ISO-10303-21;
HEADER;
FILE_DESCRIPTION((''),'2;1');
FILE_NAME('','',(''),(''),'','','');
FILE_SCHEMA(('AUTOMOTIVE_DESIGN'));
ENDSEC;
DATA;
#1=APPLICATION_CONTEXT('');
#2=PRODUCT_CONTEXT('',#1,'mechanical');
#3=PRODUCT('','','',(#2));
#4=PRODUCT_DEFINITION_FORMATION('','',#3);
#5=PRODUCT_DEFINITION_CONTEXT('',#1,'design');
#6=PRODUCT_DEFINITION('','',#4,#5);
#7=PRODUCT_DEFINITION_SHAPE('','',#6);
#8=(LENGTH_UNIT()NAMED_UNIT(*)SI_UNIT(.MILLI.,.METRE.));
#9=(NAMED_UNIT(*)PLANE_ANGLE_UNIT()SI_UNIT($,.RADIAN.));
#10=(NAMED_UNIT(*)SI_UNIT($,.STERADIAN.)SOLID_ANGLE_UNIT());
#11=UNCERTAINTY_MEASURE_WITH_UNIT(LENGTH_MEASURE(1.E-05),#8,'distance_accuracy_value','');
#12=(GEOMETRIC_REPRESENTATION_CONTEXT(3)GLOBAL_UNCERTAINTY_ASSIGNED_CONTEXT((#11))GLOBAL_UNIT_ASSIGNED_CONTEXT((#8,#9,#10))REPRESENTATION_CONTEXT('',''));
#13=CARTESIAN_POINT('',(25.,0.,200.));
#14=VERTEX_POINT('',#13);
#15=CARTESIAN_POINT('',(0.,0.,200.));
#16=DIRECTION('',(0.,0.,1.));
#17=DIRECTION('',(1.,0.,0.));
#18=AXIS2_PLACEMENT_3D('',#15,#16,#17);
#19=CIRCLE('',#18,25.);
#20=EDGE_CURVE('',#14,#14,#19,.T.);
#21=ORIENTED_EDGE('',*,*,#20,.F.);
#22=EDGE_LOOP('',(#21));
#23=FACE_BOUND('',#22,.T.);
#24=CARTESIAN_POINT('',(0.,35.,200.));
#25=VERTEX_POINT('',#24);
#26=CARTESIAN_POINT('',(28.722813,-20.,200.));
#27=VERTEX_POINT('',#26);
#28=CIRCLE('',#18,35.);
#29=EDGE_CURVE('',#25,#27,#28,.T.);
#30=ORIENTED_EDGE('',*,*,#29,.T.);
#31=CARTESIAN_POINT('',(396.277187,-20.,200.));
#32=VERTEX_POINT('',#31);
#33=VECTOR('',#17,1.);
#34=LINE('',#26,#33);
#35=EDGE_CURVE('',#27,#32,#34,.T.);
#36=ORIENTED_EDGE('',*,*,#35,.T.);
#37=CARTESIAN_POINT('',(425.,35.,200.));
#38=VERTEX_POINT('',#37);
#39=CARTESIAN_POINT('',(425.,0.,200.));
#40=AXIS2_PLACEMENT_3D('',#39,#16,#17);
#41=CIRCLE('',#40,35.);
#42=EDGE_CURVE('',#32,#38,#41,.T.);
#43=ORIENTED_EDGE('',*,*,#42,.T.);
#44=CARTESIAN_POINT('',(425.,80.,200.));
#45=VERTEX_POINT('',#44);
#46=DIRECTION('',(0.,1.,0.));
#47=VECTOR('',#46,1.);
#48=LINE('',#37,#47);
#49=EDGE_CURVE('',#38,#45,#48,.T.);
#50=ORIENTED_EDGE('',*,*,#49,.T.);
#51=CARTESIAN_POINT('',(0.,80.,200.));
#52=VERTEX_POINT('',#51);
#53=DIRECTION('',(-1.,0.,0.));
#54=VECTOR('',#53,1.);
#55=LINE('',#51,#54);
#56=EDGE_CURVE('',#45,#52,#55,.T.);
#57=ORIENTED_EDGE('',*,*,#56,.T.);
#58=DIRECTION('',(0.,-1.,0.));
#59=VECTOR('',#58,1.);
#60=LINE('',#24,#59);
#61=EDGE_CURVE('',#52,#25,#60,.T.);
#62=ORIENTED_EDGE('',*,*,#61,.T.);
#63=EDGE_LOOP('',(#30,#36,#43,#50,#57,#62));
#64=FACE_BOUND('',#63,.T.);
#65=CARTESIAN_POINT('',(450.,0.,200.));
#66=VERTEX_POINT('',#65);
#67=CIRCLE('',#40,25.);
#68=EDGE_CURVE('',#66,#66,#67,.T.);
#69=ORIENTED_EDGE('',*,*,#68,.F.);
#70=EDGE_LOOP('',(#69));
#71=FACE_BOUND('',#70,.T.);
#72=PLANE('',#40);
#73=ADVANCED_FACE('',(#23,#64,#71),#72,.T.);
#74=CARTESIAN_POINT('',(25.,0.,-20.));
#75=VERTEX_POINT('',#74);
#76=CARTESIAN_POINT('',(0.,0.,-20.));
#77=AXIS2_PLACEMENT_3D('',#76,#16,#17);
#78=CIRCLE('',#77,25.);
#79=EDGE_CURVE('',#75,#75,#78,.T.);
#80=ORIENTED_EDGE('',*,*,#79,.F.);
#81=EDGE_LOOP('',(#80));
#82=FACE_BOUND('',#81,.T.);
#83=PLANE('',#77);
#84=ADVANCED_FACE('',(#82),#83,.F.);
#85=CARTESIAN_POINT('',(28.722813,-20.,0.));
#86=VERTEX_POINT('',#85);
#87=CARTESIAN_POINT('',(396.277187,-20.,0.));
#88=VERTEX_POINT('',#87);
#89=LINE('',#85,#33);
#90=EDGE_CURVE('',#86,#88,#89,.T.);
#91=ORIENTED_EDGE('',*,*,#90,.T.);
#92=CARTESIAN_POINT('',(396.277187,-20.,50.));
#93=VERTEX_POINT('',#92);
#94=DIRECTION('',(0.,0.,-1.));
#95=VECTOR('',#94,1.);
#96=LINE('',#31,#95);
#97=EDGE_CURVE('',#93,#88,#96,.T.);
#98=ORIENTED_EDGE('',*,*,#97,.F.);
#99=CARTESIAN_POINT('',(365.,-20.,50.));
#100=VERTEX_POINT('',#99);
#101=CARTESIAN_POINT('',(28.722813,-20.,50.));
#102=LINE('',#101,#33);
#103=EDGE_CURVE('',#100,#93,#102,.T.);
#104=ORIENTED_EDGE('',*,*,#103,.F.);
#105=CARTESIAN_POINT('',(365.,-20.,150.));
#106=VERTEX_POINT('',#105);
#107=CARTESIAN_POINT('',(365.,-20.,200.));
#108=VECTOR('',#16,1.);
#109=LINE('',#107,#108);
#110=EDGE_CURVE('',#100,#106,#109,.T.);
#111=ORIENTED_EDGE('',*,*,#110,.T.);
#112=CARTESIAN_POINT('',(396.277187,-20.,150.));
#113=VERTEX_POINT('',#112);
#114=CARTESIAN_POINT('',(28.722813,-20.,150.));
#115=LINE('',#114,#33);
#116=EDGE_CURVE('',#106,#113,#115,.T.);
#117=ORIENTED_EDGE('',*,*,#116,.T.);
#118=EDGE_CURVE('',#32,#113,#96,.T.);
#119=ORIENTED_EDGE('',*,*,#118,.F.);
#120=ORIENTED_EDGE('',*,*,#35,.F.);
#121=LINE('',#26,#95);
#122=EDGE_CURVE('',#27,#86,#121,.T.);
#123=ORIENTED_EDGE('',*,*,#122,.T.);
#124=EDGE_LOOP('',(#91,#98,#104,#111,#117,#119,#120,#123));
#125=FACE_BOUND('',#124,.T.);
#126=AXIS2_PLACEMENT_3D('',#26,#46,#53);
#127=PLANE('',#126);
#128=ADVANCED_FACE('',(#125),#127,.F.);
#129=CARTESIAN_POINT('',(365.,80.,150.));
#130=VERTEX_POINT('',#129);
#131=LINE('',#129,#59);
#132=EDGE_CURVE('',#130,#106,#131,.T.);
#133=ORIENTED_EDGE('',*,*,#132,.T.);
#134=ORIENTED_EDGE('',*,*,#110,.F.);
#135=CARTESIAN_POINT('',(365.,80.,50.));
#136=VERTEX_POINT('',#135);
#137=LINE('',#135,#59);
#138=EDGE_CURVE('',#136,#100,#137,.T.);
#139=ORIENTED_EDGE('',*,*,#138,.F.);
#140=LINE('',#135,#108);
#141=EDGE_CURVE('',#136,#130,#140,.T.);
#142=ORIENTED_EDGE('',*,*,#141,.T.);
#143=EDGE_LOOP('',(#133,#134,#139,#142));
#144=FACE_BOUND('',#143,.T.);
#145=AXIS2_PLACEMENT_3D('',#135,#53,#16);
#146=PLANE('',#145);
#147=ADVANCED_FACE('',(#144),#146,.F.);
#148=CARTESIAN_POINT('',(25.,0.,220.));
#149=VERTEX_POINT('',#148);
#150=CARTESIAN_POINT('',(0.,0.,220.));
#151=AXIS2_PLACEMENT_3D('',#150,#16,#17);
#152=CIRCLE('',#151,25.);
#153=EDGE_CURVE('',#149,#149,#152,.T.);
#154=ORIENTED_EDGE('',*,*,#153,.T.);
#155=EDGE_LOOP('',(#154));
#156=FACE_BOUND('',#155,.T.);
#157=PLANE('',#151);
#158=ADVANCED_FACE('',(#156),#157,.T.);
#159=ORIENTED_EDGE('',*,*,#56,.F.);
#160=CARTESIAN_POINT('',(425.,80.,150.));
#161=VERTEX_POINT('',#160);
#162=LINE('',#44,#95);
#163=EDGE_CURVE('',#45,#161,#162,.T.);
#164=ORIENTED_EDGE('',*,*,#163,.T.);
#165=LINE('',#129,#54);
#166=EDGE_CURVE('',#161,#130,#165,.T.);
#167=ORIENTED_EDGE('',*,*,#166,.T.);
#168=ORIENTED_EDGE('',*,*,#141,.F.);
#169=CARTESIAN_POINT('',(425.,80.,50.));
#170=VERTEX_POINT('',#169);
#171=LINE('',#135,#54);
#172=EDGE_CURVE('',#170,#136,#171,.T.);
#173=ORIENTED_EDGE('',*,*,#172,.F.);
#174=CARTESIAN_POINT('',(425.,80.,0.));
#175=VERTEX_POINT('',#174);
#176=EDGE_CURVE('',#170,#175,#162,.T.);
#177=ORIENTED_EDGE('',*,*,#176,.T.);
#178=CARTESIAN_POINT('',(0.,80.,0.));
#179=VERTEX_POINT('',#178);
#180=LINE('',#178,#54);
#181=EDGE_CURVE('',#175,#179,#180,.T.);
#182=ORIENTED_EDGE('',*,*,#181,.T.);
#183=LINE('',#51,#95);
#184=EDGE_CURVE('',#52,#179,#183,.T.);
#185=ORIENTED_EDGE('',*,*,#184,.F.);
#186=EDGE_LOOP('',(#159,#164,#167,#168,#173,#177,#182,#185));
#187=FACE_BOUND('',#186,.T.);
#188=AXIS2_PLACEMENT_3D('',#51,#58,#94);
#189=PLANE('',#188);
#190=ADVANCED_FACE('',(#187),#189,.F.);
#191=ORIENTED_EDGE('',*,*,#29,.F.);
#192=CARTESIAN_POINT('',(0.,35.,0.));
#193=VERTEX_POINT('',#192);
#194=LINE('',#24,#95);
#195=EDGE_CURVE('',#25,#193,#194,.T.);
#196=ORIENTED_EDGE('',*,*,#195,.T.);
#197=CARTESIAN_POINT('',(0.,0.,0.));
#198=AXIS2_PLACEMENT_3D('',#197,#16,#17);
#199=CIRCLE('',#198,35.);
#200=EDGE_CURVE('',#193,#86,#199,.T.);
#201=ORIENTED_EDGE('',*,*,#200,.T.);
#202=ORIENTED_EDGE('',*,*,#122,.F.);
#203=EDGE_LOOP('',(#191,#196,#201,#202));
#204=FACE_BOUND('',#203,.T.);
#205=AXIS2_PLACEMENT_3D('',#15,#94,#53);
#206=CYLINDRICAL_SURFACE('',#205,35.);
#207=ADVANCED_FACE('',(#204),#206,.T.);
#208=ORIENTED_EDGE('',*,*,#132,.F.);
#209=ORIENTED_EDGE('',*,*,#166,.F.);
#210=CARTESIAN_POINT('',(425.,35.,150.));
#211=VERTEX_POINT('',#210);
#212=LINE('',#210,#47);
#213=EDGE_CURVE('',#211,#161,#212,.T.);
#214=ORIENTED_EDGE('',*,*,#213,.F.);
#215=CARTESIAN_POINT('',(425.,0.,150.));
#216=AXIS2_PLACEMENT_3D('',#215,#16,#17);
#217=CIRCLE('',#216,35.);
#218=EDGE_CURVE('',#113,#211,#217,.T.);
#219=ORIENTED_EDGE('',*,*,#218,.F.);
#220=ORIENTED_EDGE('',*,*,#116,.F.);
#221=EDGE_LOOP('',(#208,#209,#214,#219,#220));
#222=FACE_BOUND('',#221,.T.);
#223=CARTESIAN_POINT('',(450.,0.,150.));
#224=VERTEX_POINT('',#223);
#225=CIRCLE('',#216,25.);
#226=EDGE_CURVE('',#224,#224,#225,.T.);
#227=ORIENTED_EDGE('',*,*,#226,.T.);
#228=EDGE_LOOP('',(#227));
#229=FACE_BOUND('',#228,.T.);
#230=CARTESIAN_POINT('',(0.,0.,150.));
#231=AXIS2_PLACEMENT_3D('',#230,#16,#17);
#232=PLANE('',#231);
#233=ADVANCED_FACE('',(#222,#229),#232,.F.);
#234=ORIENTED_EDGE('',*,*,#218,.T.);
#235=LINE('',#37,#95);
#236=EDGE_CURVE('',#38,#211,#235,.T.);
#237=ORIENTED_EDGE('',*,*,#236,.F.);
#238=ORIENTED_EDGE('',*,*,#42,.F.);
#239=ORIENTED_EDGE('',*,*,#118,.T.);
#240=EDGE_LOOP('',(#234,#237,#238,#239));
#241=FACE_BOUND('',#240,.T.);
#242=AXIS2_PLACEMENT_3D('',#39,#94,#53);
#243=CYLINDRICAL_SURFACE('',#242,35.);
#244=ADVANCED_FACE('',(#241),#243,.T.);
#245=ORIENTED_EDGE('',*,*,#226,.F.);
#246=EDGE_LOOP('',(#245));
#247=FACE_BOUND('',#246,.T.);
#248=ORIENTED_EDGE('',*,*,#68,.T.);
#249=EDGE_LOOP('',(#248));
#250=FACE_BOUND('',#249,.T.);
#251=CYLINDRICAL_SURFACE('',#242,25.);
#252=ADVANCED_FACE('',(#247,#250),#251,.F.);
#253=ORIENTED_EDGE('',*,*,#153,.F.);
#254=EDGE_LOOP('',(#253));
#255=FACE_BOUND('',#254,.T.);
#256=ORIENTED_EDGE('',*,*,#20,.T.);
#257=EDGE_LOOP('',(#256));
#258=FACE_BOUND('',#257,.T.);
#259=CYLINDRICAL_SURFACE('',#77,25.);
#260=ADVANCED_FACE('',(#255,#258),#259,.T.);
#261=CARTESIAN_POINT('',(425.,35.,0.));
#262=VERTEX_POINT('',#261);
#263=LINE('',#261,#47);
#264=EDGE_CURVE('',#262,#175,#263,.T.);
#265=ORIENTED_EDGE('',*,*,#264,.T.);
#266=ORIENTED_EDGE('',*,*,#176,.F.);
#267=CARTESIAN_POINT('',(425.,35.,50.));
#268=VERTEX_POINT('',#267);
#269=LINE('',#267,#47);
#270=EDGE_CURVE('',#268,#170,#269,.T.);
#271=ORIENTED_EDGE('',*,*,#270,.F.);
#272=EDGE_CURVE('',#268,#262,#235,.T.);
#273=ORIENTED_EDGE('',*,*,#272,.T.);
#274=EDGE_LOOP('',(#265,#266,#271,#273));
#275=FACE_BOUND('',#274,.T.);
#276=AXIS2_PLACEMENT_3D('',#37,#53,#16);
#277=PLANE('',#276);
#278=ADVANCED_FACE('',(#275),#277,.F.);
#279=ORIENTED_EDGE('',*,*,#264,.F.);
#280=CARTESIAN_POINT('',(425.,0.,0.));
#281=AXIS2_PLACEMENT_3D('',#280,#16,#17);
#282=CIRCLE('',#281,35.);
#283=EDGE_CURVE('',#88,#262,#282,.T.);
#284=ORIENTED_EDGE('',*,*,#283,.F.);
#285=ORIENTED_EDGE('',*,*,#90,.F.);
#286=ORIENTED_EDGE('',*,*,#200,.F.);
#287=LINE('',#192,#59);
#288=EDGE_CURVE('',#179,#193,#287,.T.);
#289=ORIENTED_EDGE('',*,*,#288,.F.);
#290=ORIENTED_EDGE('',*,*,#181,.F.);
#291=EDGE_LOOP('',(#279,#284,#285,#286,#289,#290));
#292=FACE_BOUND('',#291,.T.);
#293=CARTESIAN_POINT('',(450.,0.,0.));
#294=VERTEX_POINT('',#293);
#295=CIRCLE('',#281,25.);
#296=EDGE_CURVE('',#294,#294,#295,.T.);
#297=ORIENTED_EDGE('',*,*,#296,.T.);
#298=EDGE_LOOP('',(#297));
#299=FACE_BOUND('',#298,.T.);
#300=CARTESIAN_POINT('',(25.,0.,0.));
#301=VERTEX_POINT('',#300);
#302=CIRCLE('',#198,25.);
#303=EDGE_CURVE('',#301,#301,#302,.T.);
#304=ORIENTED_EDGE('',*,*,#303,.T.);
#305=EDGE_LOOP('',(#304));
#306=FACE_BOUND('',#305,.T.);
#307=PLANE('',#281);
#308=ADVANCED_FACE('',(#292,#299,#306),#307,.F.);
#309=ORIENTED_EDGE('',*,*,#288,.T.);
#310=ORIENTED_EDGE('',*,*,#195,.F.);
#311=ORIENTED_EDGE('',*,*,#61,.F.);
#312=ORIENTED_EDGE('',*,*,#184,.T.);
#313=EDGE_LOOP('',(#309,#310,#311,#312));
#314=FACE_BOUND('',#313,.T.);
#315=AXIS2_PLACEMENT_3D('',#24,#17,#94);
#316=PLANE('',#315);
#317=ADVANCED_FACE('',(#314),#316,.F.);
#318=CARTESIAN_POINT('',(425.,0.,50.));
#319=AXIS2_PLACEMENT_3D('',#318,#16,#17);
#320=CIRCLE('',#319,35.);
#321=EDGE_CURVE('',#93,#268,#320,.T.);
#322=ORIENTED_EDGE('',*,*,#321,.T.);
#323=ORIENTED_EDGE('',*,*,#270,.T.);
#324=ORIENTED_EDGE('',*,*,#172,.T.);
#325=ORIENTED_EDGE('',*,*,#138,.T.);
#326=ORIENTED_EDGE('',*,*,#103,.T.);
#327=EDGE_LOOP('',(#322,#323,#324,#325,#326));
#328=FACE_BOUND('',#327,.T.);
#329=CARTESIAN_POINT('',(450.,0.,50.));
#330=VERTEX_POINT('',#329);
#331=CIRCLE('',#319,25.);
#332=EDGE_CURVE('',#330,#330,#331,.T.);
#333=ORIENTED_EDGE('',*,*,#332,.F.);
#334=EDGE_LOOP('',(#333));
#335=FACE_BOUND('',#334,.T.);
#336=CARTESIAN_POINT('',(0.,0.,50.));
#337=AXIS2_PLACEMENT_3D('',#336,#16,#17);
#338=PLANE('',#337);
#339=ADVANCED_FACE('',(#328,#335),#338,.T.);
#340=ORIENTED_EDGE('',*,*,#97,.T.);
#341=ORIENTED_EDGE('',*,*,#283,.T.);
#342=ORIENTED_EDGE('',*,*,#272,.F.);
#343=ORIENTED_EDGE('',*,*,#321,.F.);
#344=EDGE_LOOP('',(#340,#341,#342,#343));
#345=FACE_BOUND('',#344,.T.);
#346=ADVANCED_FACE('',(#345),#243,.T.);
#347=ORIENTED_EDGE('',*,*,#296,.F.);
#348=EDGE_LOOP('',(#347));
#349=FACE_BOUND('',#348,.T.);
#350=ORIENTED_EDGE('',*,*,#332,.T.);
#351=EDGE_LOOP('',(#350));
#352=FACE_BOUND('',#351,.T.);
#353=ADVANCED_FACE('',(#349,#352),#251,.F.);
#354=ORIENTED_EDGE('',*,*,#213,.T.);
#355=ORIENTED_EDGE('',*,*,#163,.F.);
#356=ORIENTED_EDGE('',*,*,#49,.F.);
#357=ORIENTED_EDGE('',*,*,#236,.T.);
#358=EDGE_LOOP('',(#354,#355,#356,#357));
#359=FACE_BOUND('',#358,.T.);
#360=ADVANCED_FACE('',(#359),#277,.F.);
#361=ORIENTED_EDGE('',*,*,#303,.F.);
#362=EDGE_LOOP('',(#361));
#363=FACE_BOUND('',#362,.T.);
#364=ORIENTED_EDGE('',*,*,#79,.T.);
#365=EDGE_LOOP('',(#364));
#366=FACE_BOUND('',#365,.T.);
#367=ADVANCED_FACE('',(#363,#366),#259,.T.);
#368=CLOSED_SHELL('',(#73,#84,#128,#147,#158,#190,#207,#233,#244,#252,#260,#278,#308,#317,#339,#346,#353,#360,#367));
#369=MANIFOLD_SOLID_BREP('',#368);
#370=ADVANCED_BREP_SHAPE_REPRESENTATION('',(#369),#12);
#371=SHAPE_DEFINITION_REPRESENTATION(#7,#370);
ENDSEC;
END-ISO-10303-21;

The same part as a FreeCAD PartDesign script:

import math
import FreeCAD as App
import Part
import Sketcher

V = App.Vector

doc = App.newDocument("Part")
body = doc.addObject("PartDesign::Body", "Body")

sketch1 = doc.addObject("Sketcher::SketchObject", "Sketch")
body.addObject(sketch1)
sketch1.AttachmentSupport = (doc.XY_Plane, [""])
sketch1.MapMode = "FlatFace"
sketch1.addGeometry([
    Part.LineSegment(V(29, -20, 0), V(396, -20, 0)),
    Part.ArcOfCircle(Part.Circle(V(425, 0, 0), V(0, 0, 1), 35), math.radians(-145), math.radians(90)),
    Part.LineSegment(V(425, 35, 0), V(425, 80, 0)),
    Part.LineSegment(V(425, 80, 0), V(0, 80, 0)),
    Part.LineSegment(V(0, 80, 0), V(0, 35, 0)),
    Part.ArcOfCircle(Part.Circle(V(0, 0, 0), V(0, 0, 1), 35), math.radians(90), math.radians(325)),
    Part.Circle(V(425, 0, 0), V(0, 0, 1), 25),
], False)
sketch1.addConstraint([
    Sketcher.Constraint("Coincident", 0, 2, 1, 1),
    Sketcher.Constraint("Coincident", 1, 2, 2, 1),
    Sketcher.Constraint("Coincident", 2, 2, 3, 1),
    Sketcher.Constraint("Coincident", 3, 2, 4, 1),
    Sketcher.Constraint("Coincident", 4, 2, 5, 1),
    Sketcher.Constraint("Coincident", 5, 2, 0, 1),
    Sketcher.Constraint("Horizontal", 0),
    Sketcher.Constraint("Vertical", 2),
    Sketcher.Constraint("Horizontal", 3),
    Sketcher.Constraint("Vertical", 4),
    Sketcher.Constraint("Coincident", 5, 3, -1, 1),
    Sketcher.Constraint("Coincident", 6, 3, 1, 3),
    Sketcher.Constraint("Equal", 1, 5),
    Sketcher.Constraint("PointOnObject", 1, 3, -1),
    Sketcher.Constraint("PointOnObject", 3, 2, -2),
    Sketcher.Constraint("Vertical", 6, 3, 1, 2),
    Sketcher.Constraint("Diameter", 6, 50.0),
    Sketcher.Constraint("Radius", 1, 35.0),
    Sketcher.Constraint("DistanceX", 3, 2, 3, 1, 425.0),
    Sketcher.Constraint("DistanceY", 2, 1, 2, 2, 45.0),
    Sketcher.Constraint("DistanceY", 0, 2, -1, 1, 20.0),
])
pad1 = doc.addObject("PartDesign::Pad", "Pad")
body.addObject(pad1)
pad1.Profile = sketch1
pad1.Length = 200

sketch2 = doc.addObject("Sketcher::SketchObject", "Sketch001")
body.addObject(sketch2)
sketch2.AttachmentSupport = (doc.XY_Plane, [""])
sketch2.MapMode = "FlatFace"
sketch2.AttachmentOffset = App.Placement(V(0, 0, 200), App.Rotation())
sketch2.addGeometry(Part.Circle(V(0, 0, 0), V(0, 0, 1), 25), False)
sketch2.addConstraint([
    Sketcher.Constraint("Coincident", 0, 3, -1, 1),
    Sketcher.Constraint("Diameter", 0, 50.0),
])
pad2 = doc.addObject("PartDesign::Pad", "Pad001")
body.addObject(pad2)
pad2.Profile = sketch2
pad2.Type = "TwoLengths"
pad2.Length = 20
pad2.Length2 = 220

sketch3 = doc.addObject("Sketcher::SketchObject", "Sketch002")
body.addObject(sketch3)
sketch3.AttachmentSupport = (doc.XY_Plane, [""])
sketch3.MapMode = "FlatFace"
sketch3.AttachmentOffset = App.Placement(V(0, 0, 150), App.Rotation())
sketch3.addGeometry([
    Part.LineSegment(V(365, 80, 0), V(365, -40, 0)),
    Part.LineSegment(V(365, -40, 0), V(493, -40, 0)),
    Part.LineSegment(V(493, -40, 0), V(493, 80, 0)),
    Part.LineSegment(V(493, 80, 0), V(365, 80, 0)),
], False)
sketch3.addConstraint([
    Sketcher.Constraint("Coincident", 0, 2, 1, 1),
    Sketcher.Constraint("Coincident", 1, 2, 2, 1),
    Sketcher.Constraint("Coincident", 2, 2, 3, 1),
    Sketcher.Constraint("Coincident", 3, 2, 0, 1),
    Sketcher.Constraint("Vertical", 0),
    Sketcher.Constraint("Horizontal", 1),
    Sketcher.Constraint("Vertical", 2),
    Sketcher.Constraint("Horizontal", 3),
    Sketcher.Constraint("DistanceY", 0, 2, 0, 1, 120.0),
    Sketcher.Constraint("DistanceX", -1, 1, 0, 2, 365.0),
    Sketcher.Constraint("DistanceY", 0, 2, -1, 1, 40.0),
    Sketcher.Constraint("DistanceX", 1, 1, 1, 2, 128.293242),
])
pocket1 = doc.addObject("PartDesign::Pocket", "Pocket")
body.addObject(pocket1)
pocket1.Profile = sketch3
pocket1.Length = 100

doc.recompute()
